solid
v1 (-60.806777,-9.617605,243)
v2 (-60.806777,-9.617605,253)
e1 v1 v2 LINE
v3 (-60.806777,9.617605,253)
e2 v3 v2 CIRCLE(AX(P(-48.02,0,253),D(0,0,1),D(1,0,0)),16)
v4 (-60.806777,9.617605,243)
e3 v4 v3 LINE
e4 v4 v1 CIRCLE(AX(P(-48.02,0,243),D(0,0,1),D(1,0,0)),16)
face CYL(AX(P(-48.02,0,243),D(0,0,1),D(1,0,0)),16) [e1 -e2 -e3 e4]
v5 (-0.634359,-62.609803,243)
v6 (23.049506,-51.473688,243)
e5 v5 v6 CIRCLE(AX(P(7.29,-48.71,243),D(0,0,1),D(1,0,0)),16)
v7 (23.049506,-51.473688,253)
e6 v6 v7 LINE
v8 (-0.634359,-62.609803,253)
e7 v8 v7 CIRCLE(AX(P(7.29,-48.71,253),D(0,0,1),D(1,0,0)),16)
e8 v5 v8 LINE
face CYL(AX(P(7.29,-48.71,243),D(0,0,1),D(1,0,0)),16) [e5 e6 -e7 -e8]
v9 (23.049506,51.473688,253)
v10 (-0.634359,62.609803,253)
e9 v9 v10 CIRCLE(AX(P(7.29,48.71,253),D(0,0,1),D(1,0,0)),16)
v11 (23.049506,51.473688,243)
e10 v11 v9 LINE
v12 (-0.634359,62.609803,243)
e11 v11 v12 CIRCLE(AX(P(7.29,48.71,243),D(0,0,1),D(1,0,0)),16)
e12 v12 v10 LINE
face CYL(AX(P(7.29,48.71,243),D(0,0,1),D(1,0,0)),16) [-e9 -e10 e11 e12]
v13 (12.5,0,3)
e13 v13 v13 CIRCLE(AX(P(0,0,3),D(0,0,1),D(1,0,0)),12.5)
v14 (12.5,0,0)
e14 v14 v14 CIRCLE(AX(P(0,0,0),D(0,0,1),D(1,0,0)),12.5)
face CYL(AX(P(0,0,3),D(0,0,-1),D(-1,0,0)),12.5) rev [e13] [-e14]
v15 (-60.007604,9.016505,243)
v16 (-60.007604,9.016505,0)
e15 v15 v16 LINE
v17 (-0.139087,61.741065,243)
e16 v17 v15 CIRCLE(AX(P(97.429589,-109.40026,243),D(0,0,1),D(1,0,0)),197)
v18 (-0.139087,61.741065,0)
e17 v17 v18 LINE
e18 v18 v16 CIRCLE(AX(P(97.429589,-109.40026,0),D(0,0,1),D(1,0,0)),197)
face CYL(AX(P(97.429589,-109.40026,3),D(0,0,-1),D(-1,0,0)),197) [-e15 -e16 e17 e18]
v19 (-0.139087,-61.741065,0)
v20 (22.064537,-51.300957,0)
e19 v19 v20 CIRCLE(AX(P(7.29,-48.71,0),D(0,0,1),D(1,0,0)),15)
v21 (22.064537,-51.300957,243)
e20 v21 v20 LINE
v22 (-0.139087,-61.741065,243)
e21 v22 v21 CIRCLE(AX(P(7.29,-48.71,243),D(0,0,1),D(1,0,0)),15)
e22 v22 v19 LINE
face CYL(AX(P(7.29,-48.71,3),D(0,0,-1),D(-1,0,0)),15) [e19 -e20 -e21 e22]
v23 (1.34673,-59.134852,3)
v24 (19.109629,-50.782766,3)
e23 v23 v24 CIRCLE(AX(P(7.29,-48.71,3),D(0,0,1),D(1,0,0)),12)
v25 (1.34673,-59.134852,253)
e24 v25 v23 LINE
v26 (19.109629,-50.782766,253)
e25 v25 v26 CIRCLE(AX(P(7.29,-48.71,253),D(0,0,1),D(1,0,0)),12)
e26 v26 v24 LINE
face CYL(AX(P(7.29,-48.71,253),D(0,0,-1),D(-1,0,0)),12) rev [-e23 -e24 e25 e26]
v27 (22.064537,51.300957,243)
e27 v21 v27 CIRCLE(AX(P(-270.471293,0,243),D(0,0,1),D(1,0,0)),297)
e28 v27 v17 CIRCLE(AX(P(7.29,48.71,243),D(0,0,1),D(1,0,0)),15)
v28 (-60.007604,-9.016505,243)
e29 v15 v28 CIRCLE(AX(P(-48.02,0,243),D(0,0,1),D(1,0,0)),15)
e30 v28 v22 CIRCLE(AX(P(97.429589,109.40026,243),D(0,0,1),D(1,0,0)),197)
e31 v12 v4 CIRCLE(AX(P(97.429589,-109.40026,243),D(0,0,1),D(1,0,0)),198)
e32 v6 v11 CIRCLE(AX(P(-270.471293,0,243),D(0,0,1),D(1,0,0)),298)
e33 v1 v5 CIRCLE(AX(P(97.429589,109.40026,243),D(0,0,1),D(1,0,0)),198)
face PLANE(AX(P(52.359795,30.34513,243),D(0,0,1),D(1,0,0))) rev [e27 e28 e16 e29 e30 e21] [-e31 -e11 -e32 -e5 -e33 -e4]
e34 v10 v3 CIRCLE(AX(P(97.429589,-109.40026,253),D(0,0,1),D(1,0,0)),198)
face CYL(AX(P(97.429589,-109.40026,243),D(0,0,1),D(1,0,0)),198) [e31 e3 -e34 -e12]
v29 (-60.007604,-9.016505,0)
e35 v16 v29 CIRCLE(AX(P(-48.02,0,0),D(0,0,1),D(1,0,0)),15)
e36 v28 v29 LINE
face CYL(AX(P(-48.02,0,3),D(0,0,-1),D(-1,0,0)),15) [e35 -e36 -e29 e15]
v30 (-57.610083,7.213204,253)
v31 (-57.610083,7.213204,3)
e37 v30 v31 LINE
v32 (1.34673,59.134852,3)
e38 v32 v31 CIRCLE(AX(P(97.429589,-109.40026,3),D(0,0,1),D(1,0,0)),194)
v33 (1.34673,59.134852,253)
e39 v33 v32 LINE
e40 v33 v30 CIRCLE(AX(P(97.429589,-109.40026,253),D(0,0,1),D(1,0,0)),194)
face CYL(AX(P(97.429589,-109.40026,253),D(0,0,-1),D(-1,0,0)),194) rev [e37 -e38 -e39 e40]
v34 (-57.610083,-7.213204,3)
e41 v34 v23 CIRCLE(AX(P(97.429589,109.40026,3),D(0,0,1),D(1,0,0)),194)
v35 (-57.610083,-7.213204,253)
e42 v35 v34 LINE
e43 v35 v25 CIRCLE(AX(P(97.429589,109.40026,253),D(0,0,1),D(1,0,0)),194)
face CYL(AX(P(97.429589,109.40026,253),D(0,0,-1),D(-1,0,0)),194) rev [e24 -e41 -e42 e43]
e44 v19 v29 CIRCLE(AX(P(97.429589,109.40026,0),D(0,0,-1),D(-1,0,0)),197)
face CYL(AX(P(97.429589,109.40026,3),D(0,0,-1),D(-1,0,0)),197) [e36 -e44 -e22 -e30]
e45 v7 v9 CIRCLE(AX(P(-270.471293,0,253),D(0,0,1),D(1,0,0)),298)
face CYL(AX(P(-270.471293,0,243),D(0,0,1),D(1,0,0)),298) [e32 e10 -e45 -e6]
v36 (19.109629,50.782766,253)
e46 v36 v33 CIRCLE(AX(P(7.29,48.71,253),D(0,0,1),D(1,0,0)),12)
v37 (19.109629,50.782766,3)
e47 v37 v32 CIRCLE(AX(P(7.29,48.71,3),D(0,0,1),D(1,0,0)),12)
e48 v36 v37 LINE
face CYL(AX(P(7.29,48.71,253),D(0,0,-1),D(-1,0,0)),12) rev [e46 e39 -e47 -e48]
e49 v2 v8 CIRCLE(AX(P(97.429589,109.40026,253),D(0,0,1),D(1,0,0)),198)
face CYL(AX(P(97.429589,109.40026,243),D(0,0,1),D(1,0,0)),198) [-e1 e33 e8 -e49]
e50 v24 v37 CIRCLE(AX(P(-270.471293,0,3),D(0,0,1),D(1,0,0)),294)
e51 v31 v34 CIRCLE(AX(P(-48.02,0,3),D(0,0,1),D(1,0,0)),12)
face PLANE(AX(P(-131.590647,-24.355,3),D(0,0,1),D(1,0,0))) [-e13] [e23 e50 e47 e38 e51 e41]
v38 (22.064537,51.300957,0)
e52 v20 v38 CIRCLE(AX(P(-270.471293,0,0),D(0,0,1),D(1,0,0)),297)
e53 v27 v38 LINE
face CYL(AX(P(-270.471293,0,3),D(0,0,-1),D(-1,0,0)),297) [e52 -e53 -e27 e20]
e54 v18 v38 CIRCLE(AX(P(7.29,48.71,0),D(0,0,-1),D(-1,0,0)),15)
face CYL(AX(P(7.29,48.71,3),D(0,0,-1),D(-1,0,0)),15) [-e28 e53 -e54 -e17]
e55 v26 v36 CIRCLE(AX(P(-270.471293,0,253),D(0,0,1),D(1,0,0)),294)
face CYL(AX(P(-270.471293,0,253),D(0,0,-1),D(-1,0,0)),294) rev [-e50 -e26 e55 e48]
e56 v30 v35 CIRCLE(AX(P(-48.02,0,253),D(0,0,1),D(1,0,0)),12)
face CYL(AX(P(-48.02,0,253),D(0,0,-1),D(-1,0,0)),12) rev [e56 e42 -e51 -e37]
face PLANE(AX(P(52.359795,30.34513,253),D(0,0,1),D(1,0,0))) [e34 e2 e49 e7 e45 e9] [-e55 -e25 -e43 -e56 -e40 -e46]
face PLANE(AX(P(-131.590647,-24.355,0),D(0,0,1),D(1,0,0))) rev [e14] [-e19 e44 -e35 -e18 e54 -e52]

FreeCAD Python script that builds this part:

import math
import FreeCAD as App
import Part
import Sketcher

V = App.Vector
Q = App.Units.Quantity

doc = App.newDocument("Part")
params = doc.addObject("Spreadsheet::Sheet", "Params")
for row, (alias, value) in enumerate([
    ("sketch1_diameter", "25 mm"),
    ("sketch1_radius", "197 mm"),
    ("sketch1_radius2", "15 mm"),
    ("sketch1_radius3", "297 mm"),
    ("pad1_length", "3 mm"),
    ("sketch2_radius", "15 mm"),
    ("sketch2_radius2", "197 mm"),
    ("sketch2_radius3", "297 mm"),
    ("sketch2_radius4", "294 mm"),
    ("pad2_length", "250 mm"),
    ("sketch3_radius", "16 mm"),
    ("sketch3_radius2", "198 mm"),
    ("sketch3_radius3", "298 mm"),
    ("sketch3_radius4", "297 mm"),
    ("pad3_length", "10 mm"),
], start=1):
    params.set(f"A{row}", alias)
    params.set(f"B{row}", "=" + value)
    params.setAlias(f"B{row}", alias)

body = doc.addObject("PartDesign::Body", "Body")

# Sketch on XY plane
sketch1 = body.newObject("Sketcher::SketchObject", "Sketch")
sketch1.AttachmentSupport = (doc.getObject("XY_Plane"), [""])
sketch1.MapMode = "FlatFace"
sketch1.addGeometry([
    Part.ArcOfCircle(Part.Circle(V(97, 109, 0), V(0, 0, 1), 197), math.radians(-143), math.radians(-120)),  # 0
    Part.ArcOfCircle(Part.Circle(V(7, -49, 0), V(0, 0, 1), 15), math.radians(-120), math.radians(-10)),  # 1
    Part.ArcOfCircle(Part.Circle(V(-270, 0, 0), V(0, 0, 1), 297), math.radians(-9.95), math.radians(9.95)),  # 2
    Part.ArcOfCircle(Part.Circle(V(7, 49, 0), V(0, 0, 1), 15), math.radians(10), math.radians(120)),  # 3
    Part.ArcOfCircle(Part.Circle(V(97, -109, 0), V(0, 0, 1), 197), math.radians(120), math.radians(143)),  # 4
    Part.ArcOfCircle(Part.Circle(V(-48, 0, 0), V(0, 0, 1), 15), math.radians(143), math.radians(217)),  # 5
    Part.Circle(V(0, 0, 0), V(0, 0, 1), 12),  # 6
], False)
sketch1.addConstraint([
    Sketcher.Constraint("Tangent", 0, 2, 1, 1),
    Sketcher.Constraint("Tangent", 1, 2, 2, 1),
    Sketcher.Constraint("Tangent", 2, 2, 3, 1),
    Sketcher.Constraint("Tangent", 3, 2, 4, 1),
    Sketcher.Constraint("Tangent", 4, 2, 5, 1),
    Sketcher.Constraint("Tangent", 5, 2, 0, 1),
    Sketcher.Constraint("Coincident", 6, 3, -1, 1),
    Sketcher.Constraint("Equal", 1, 3),
    Sketcher.Constraint("Equal", 0, 4),
    Sketcher.Constraint("Equal", 3, 5),
    Sketcher.Constraint("Symmetric", 1, 3, 3, 3, -1),
    Sketcher.Constraint("PointOnObject", 5, 3, -1),
    Sketcher.Constraint("Diameter", 6, Q("25 mm")),
    Sketcher.Constraint("Radius", 0, Q("197 mm")),
    Sketcher.Constraint("Radius", 1, Q("15 mm")),
    Sketcher.Constraint("Radius", 2, Q("297 mm")),
    Sketcher.Constraint("DistanceX", -1, 1, 1, 3, Q("7.29 mm")),
    Sketcher.Constraint("DistanceY", 1, 3, -1, 1, Q("48.71 mm")),
    Sketcher.Constraint("DistanceX", 5, 3, -1, 1, Q("48.02 mm")),
])
sketch1.setExpression("Constraints[12]", "Params.sketch1_diameter")
sketch1.setExpression("Constraints[13]", "Params.sketch1_radius")
sketch1.setExpression("Constraints[14]", "Params.sketch1_radius2")
sketch1.setExpression("Constraints[15]", "Params.sketch1_radius3")
pad1 = body.newObject("PartDesign::Pad", "Pad")
pad1.Profile = sketch1
pad1.setExpression("Length", "Params.pad1_length")

# Sketch on XY plane
sketch2 = body.newObject("Sketcher::SketchObject", "Sketch001")
sketch2.AttachmentSupport = (doc.getObject("XY_Plane"), [""])
sketch2.MapMode = "FlatFace"
sketch2.AttachmentOffset = App.Placement(V(0, 0, 3), App.Rotation())
sketch2.addGeometry([
    Part.ArcOfCircle(Part.Circle(V(-48, 0, 0), V(0, 0, 1), 15), math.radians(180), math.radians(217)),  # 0
    Part.ArcOfCircle(Part.Circle(V(97, 109, 0), V(0, 0, 1), 197), math.radians(-143), math.radians(-120)),  # 1
    Part.ArcOfCircle(Part.Circle(V(7, -49, 0), V(0, 0, 1), 15), math.radians(-120), math.radians(-10)),  # 2
    Part.ArcOfCircle(Part.Circle(V(-270, 0, 0), V(0, 0, 1), 297), math.radians(-9.95), math.radians(0)),  # 3
    Part.ArcOfCircle(Part.Circle(V(-270, 0, 0), V(0, 0, 1), 297), math.radians(0), math.radians(9.95)),  # 4
    Part.ArcOfCircle(Part.Circle(V(7, 49, 0), V(0, 0, 1), 15), math.radians(10), math.radians(120)),  # 5
    Part.ArcOfCircle(Part.Circle(V(97, -109, 0), V(0, 0, 1), 197), math.radians(120), math.radians(143)),  # 6
    Part.ArcOfCircle(Part.Circle(V(-48, 0, 0), V(0, 0, 1), 15), math.radians(143), math.radians(180)),  # 7
    Part.ArcOfCircle(Part.Circle(V(-270, 0, 0), V(0, 0, 1), 294), math.radians(-9.95), math.radians(0)),  # 8
    Part.ArcOfCircle(Part.Circle(V(7, -49, 0), V(0, 0, 1), 12), math.radians(-120), math.radians(-10)),  # 9
    Part.ArcOfCircle(Part.Circle(V(97, 109, 0), V(0, 0, 1), 194), math.radians(-143), math.radians(-120)),  # 10
    Part.ArcOfCircle(Part.Circle(V(-48, 0, 0), V(0, 0, 1), 12), math.radians(180), math.radians(217)),  # 11
    Part.ArcOfCircle(Part.Circle(V(-48, 0, 0), V(0, 0, 1), 12), math.radians(143), math.radians(180)),  # 12
    Part.ArcOfCircle(Part.Circle(V(97, -109, 0), V(0, 0, 1), 194), math.radians(120), math.radians(143)),  # 13
    Part.ArcOfCircle(Part.Circle(V(7, 49, 0), V(0, 0, 1), 12), math.radians(10), math.radians(120)),  # 14
    Part.ArcOfCircle(Part.Circle(V(-270, 0, 0), V(0, 0, 1), 294), math.radians(0), math.radians(9.95)),  # 15
], False)
sketch2.addConstraint([
    Sketcher.Constraint("Tangent", 0, 2, 1, 1),
    Sketcher.Constraint("Tangent", 1, 2, 2, 1),
    Sketcher.Constraint("Tangent", 2, 2, 3, 1),
    Sketcher.Constraint("Tangent", 3, 2, 4, 1),
    Sketcher.Constraint("Tangent", 4, 2, 5, 1),
    Sketcher.Constraint("Tangent", 5, 2, 6, 1),
    Sketcher.Constraint("Tangent", 6, 2, 7, 1),
    Sketcher.Constraint("Tangent", 7, 2, 0, 1),
    Sketcher.Constraint("Tangent", 8, 1, 9, 2),
    Sketcher.Constraint("Tangent", 9, 1, 10, 2),
    Sketcher.Constraint("Tangent", 10, 1, 11, 2),
    Sketcher.Constraint("Tangent", 11, 1, 12, 2),
    Sketcher.Constraint("Tangent", 12, 1, 13, 2),
    Sketcher.Constraint("Tangent", 13, 1, 14, 2),
    Sketcher.Constraint("Tangent", 14, 1, 15, 2),
    Sketcher.Constraint("Tangent", 15, 1, 8, 2),
    Sketcher.Constraint("Coincident", 8, 3, 3, 3),
    Sketcher.Constraint("Coincident", 9, 3, 2, 3),
    Sketcher.Constraint("Coincident", 10, 3, 1, 3),
    Sketcher.Constraint("Coincident", 11, 3, 0, 3),
    Sketcher.Constraint("Coincident", 13, 3, 6, 3),
    Sketcher.Constraint("Coincident", 14, 3, 5, 3),
    Sketcher.Constraint("Equal", 0, 2),
    Sketcher.Constraint("Equal", 3, 4),
    Sketcher.Constraint("Equal", 2, 5),
    Sketcher.Constraint("Equal", 1, 6),
    Sketcher.Constraint("Equal", 5, 7),
    Sketcher.Constraint("Equal", 11, 12),
    Sketcher.Constraint("Symmetric", 2, 3, 5, 3, -1),
    Sketcher.Constraint("PointOnObject", 0, 3, -1),
    Sketcher.Constraint("PointOnObject", 3, 2, -1),
    Sketcher.Constraint("PointOnObject", 7, 2, -1),
    Sketcher.Constraint("PointOnObject", 11, 1, -1),
    Sketcher.Constraint("PointOnObject", 15, 1, -1),
    Sketcher.Constraint("Radius", 0, Q("15 mm")),
    Sketcher.Constraint("Radius", 1, Q("197 mm")),
    Sketcher.Constraint("Radius", 3, Q("297 mm")),
    Sketcher.Constraint("Radius", 8, Q("294 mm")),
    Sketcher.Constraint("DistanceX", 0, 3, -1, 1, Q("48.02 mm")),
    Sketcher.Constraint("DistanceX", -1, 1, 2, 3, Q("7.29 mm")),
    Sketcher.Constraint("DistanceY", 2, 3, -1, 1, Q("48.71 mm")),
])
sketch2.setExpression("Constraints[34]", "Params.sketch2_radius")
sketch2.setExpression("Constraints[35]", "Params.sketch2_radius2")
sketch2.setExpression("Constraints[36]", "Params.sketch2_radius3")
sketch2.setExpression("Constraints[37]", "Params.sketch2_radius4")
pad2 = body.newObject("PartDesign::Pad", "Pad001")
pad2.Profile = sketch2
pad2.setExpression("Length", "Params.pad2_length")

# Sketch on XY plane
sketch3 = body.newObject("Sketcher::SketchObject", "Sketch002")
sketch3.AttachmentSupport = (doc.getObject("XY_Plane"), [""])
sketch3.MapMode = "FlatFace"
sketch3.AttachmentOffset = App.Placement(V(0, 0, 243), App.Rotation())
sketch3.addGeometry([
    Part.ArcOfCircle(Part.Circle(V(-48, 0, 0), V(0, 0, 1), 16), math.radians(180), math.radians(217)),  # 0
    Part.ArcOfCircle(Part.Circle(V(97, 109, 0), V(0, 0, 1), 198), math.radians(-143), math.radians(-120)),  # 1
    Part.ArcOfCircle(Part.Circle(V(7, -49, 0), V(0, 0, 1), 16), math.radians(-120), math.radians(-10)),  # 2
    Part.ArcOfCircle(Part.Circle(V(-270, 0, 0), V(0, 0, 1), 298), math.radians(-9.95), math.radians(0)),  # 3
    Part.ArcOfCircle(Part.Circle(V(-270, 0, 0), V(0, 0, 1), 298), math.radians(0), math.radians(9.95)),  # 4
    Part.ArcOfCircle(Part.Circle(V(7, 49, 0), V(0, 0, 1), 16), math.radians(10), math.radians(120)),  # 5
    Part.ArcOfCircle(Part.Circle(V(97, -109, 0), V(0, 0, 1), 198), math.radians(120), math.radians(143)),  # 6
    Part.ArcOfCircle(Part.Circle(V(-48, 0, 0), V(0, 0, 1), 16), math.radians(143), math.radians(180)),  # 7
    Part.ArcOfCircle(Part.Circle(V(-270, 0, 0), V(0, 0, 1), 297), math.radians(-9.95), math.radians(0)),  # 8
    Part.ArcOfCircle(Part.Circle(V(7, -49, 0), V(0, 0, 1), 15), math.radians(-120), math.radians(-10)),  # 9
    Part.ArcOfCircle(Part.Circle(V(97, 109, 0), V(0, 0, 1), 197), math.radians(-143), math.radians(-120)),  # 10
    Part.ArcOfCircle(Part.Circle(V(-48, 0, 0), V(0, 0, 1), 15), math.radians(180), math.radians(217)),  # 11
    Part.ArcOfCircle(Part.Circle(V(-48, 0, 0), V(0, 0, 1), 15), math.radians(143), math.radians(180)),  # 12
    Part.ArcOfCircle(Part.Circle(V(97, -109, 0), V(0, 0, 1), 197), math.radians(120), math.radians(143)),  # 13
    Part.ArcOfCircle(Part.Circle(V(7, 49, 0), V(0, 0, 1), 15), math.radians(10), math.radians(120)),  # 14
    Part.ArcOfCircle(Part.Circle(V(-270, 0, 0), V(0, 0, 1), 297), math.radians(0), math.radians(9.95)),  # 15
], False)
sketch3.addConstraint([
    Sketcher.Constraint("Tangent", 0, 2, 1, 1),
    Sketcher.Constraint("Tangent", 1, 2, 2, 1),
    Sketcher.Constraint("Tangent", 2, 2, 3, 1),
    Sketcher.Constraint("Tangent", 3, 2, 4, 1),
    Sketcher.Constraint("Tangent", 4, 2, 5, 1),
    Sketcher.Constraint("Tangent", 5, 2, 6, 1),
    Sketcher.Constraint("Tangent", 6, 2, 7, 1),
    Sketcher.Constraint("Tangent", 7, 2, 0, 1),
    Sketcher.Constraint("Tangent", 8, 1, 9, 2),
    Sketcher.Constraint("Tangent", 9, 1, 10, 2),
    Sketcher.Constraint("Tangent", 10, 1, 11, 2),
    Sketcher.Constraint("Tangent", 11, 1, 12, 2),
    Sketcher.Constraint("Tangent", 12, 1, 13, 2),
    Sketcher.Constraint("Tangent", 13, 1, 14, 2),
    Sketcher.Constraint("Tangent", 14, 1, 15, 2),
    Sketcher.Constraint("Tangent", 15, 1, 8, 2),
    Sketcher.Constraint("Coincident", 8, 3, 3, 3),
    Sketcher.Constraint("Coincident", 9, 3, 2, 3),
    Sketcher.Constraint("Coincident", 10, 3, 1, 3),
    Sketcher.Constraint("Coincident", 11, 3, 0, 3),
    Sketcher.Constraint("Coincident", 13, 3, 6, 3),
    Sketcher.Constraint("Coincident", 14, 3, 5, 3),
    Sketcher.Constraint("Equal", 0, 2),
    Sketcher.Constraint("Equal", 3, 4),
    Sketcher.Constraint("Equal", 2, 5),
    Sketcher.Constraint("Equal", 1, 6),
    Sketcher.Constraint("Equal", 5, 7),
    Sketcher.Constraint("Equal", 11, 12),
    Sketcher.Constraint("Symmetric", 2, 3, 5, 3, -1),
    Sketcher.Constraint("PointOnObject", 0, 3, -1),
    Sketcher.Constraint("PointOnObject", 3, 2, -1),
    Sketcher.Constraint("PointOnObject", 7, 2, -1),
    Sketcher.Constraint("PointOnObject", 11, 1, -1),
    Sketcher.Constraint("PointOnObject", 15, 1, -1),
    Sketcher.Constraint("Radius", 0, Q("16 mm")),
    Sketcher.Constraint("Radius", 1, Q("198 mm")),
    Sketcher.Constraint("Radius", 3, Q("298 mm")),
    Sketcher.Constraint("Radius", 8, Q("297 mm")),
    Sketcher.Constraint("DistanceX", 0, 3, -1, 1, Q("48.02 mm")),
    Sketcher.Constraint("DistanceX", -1, 1, 2, 3, Q("7.29 mm")),
    Sketcher.Constraint("DistanceY", 2, 3, -1, 1, Q("48.71 mm")),
])
sketch3.setExpression("Constraints[34]", "Params.sketch3_radius")
sketch3.setExpression("Constraints[35]", "Params.sketch3_radius2")
sketch3.setExpression("Constraints[36]", "Params.sketch3_radius3")
sketch3.setExpression("Constraints[37]", "Params.sketch3_radius4")
pad3 = body.newObject("PartDesign::Pad", "Pad002")
pad3.Profile = sketch3
pad3.setExpression("Length", "Params.pad3_length")

doc.recompute()
